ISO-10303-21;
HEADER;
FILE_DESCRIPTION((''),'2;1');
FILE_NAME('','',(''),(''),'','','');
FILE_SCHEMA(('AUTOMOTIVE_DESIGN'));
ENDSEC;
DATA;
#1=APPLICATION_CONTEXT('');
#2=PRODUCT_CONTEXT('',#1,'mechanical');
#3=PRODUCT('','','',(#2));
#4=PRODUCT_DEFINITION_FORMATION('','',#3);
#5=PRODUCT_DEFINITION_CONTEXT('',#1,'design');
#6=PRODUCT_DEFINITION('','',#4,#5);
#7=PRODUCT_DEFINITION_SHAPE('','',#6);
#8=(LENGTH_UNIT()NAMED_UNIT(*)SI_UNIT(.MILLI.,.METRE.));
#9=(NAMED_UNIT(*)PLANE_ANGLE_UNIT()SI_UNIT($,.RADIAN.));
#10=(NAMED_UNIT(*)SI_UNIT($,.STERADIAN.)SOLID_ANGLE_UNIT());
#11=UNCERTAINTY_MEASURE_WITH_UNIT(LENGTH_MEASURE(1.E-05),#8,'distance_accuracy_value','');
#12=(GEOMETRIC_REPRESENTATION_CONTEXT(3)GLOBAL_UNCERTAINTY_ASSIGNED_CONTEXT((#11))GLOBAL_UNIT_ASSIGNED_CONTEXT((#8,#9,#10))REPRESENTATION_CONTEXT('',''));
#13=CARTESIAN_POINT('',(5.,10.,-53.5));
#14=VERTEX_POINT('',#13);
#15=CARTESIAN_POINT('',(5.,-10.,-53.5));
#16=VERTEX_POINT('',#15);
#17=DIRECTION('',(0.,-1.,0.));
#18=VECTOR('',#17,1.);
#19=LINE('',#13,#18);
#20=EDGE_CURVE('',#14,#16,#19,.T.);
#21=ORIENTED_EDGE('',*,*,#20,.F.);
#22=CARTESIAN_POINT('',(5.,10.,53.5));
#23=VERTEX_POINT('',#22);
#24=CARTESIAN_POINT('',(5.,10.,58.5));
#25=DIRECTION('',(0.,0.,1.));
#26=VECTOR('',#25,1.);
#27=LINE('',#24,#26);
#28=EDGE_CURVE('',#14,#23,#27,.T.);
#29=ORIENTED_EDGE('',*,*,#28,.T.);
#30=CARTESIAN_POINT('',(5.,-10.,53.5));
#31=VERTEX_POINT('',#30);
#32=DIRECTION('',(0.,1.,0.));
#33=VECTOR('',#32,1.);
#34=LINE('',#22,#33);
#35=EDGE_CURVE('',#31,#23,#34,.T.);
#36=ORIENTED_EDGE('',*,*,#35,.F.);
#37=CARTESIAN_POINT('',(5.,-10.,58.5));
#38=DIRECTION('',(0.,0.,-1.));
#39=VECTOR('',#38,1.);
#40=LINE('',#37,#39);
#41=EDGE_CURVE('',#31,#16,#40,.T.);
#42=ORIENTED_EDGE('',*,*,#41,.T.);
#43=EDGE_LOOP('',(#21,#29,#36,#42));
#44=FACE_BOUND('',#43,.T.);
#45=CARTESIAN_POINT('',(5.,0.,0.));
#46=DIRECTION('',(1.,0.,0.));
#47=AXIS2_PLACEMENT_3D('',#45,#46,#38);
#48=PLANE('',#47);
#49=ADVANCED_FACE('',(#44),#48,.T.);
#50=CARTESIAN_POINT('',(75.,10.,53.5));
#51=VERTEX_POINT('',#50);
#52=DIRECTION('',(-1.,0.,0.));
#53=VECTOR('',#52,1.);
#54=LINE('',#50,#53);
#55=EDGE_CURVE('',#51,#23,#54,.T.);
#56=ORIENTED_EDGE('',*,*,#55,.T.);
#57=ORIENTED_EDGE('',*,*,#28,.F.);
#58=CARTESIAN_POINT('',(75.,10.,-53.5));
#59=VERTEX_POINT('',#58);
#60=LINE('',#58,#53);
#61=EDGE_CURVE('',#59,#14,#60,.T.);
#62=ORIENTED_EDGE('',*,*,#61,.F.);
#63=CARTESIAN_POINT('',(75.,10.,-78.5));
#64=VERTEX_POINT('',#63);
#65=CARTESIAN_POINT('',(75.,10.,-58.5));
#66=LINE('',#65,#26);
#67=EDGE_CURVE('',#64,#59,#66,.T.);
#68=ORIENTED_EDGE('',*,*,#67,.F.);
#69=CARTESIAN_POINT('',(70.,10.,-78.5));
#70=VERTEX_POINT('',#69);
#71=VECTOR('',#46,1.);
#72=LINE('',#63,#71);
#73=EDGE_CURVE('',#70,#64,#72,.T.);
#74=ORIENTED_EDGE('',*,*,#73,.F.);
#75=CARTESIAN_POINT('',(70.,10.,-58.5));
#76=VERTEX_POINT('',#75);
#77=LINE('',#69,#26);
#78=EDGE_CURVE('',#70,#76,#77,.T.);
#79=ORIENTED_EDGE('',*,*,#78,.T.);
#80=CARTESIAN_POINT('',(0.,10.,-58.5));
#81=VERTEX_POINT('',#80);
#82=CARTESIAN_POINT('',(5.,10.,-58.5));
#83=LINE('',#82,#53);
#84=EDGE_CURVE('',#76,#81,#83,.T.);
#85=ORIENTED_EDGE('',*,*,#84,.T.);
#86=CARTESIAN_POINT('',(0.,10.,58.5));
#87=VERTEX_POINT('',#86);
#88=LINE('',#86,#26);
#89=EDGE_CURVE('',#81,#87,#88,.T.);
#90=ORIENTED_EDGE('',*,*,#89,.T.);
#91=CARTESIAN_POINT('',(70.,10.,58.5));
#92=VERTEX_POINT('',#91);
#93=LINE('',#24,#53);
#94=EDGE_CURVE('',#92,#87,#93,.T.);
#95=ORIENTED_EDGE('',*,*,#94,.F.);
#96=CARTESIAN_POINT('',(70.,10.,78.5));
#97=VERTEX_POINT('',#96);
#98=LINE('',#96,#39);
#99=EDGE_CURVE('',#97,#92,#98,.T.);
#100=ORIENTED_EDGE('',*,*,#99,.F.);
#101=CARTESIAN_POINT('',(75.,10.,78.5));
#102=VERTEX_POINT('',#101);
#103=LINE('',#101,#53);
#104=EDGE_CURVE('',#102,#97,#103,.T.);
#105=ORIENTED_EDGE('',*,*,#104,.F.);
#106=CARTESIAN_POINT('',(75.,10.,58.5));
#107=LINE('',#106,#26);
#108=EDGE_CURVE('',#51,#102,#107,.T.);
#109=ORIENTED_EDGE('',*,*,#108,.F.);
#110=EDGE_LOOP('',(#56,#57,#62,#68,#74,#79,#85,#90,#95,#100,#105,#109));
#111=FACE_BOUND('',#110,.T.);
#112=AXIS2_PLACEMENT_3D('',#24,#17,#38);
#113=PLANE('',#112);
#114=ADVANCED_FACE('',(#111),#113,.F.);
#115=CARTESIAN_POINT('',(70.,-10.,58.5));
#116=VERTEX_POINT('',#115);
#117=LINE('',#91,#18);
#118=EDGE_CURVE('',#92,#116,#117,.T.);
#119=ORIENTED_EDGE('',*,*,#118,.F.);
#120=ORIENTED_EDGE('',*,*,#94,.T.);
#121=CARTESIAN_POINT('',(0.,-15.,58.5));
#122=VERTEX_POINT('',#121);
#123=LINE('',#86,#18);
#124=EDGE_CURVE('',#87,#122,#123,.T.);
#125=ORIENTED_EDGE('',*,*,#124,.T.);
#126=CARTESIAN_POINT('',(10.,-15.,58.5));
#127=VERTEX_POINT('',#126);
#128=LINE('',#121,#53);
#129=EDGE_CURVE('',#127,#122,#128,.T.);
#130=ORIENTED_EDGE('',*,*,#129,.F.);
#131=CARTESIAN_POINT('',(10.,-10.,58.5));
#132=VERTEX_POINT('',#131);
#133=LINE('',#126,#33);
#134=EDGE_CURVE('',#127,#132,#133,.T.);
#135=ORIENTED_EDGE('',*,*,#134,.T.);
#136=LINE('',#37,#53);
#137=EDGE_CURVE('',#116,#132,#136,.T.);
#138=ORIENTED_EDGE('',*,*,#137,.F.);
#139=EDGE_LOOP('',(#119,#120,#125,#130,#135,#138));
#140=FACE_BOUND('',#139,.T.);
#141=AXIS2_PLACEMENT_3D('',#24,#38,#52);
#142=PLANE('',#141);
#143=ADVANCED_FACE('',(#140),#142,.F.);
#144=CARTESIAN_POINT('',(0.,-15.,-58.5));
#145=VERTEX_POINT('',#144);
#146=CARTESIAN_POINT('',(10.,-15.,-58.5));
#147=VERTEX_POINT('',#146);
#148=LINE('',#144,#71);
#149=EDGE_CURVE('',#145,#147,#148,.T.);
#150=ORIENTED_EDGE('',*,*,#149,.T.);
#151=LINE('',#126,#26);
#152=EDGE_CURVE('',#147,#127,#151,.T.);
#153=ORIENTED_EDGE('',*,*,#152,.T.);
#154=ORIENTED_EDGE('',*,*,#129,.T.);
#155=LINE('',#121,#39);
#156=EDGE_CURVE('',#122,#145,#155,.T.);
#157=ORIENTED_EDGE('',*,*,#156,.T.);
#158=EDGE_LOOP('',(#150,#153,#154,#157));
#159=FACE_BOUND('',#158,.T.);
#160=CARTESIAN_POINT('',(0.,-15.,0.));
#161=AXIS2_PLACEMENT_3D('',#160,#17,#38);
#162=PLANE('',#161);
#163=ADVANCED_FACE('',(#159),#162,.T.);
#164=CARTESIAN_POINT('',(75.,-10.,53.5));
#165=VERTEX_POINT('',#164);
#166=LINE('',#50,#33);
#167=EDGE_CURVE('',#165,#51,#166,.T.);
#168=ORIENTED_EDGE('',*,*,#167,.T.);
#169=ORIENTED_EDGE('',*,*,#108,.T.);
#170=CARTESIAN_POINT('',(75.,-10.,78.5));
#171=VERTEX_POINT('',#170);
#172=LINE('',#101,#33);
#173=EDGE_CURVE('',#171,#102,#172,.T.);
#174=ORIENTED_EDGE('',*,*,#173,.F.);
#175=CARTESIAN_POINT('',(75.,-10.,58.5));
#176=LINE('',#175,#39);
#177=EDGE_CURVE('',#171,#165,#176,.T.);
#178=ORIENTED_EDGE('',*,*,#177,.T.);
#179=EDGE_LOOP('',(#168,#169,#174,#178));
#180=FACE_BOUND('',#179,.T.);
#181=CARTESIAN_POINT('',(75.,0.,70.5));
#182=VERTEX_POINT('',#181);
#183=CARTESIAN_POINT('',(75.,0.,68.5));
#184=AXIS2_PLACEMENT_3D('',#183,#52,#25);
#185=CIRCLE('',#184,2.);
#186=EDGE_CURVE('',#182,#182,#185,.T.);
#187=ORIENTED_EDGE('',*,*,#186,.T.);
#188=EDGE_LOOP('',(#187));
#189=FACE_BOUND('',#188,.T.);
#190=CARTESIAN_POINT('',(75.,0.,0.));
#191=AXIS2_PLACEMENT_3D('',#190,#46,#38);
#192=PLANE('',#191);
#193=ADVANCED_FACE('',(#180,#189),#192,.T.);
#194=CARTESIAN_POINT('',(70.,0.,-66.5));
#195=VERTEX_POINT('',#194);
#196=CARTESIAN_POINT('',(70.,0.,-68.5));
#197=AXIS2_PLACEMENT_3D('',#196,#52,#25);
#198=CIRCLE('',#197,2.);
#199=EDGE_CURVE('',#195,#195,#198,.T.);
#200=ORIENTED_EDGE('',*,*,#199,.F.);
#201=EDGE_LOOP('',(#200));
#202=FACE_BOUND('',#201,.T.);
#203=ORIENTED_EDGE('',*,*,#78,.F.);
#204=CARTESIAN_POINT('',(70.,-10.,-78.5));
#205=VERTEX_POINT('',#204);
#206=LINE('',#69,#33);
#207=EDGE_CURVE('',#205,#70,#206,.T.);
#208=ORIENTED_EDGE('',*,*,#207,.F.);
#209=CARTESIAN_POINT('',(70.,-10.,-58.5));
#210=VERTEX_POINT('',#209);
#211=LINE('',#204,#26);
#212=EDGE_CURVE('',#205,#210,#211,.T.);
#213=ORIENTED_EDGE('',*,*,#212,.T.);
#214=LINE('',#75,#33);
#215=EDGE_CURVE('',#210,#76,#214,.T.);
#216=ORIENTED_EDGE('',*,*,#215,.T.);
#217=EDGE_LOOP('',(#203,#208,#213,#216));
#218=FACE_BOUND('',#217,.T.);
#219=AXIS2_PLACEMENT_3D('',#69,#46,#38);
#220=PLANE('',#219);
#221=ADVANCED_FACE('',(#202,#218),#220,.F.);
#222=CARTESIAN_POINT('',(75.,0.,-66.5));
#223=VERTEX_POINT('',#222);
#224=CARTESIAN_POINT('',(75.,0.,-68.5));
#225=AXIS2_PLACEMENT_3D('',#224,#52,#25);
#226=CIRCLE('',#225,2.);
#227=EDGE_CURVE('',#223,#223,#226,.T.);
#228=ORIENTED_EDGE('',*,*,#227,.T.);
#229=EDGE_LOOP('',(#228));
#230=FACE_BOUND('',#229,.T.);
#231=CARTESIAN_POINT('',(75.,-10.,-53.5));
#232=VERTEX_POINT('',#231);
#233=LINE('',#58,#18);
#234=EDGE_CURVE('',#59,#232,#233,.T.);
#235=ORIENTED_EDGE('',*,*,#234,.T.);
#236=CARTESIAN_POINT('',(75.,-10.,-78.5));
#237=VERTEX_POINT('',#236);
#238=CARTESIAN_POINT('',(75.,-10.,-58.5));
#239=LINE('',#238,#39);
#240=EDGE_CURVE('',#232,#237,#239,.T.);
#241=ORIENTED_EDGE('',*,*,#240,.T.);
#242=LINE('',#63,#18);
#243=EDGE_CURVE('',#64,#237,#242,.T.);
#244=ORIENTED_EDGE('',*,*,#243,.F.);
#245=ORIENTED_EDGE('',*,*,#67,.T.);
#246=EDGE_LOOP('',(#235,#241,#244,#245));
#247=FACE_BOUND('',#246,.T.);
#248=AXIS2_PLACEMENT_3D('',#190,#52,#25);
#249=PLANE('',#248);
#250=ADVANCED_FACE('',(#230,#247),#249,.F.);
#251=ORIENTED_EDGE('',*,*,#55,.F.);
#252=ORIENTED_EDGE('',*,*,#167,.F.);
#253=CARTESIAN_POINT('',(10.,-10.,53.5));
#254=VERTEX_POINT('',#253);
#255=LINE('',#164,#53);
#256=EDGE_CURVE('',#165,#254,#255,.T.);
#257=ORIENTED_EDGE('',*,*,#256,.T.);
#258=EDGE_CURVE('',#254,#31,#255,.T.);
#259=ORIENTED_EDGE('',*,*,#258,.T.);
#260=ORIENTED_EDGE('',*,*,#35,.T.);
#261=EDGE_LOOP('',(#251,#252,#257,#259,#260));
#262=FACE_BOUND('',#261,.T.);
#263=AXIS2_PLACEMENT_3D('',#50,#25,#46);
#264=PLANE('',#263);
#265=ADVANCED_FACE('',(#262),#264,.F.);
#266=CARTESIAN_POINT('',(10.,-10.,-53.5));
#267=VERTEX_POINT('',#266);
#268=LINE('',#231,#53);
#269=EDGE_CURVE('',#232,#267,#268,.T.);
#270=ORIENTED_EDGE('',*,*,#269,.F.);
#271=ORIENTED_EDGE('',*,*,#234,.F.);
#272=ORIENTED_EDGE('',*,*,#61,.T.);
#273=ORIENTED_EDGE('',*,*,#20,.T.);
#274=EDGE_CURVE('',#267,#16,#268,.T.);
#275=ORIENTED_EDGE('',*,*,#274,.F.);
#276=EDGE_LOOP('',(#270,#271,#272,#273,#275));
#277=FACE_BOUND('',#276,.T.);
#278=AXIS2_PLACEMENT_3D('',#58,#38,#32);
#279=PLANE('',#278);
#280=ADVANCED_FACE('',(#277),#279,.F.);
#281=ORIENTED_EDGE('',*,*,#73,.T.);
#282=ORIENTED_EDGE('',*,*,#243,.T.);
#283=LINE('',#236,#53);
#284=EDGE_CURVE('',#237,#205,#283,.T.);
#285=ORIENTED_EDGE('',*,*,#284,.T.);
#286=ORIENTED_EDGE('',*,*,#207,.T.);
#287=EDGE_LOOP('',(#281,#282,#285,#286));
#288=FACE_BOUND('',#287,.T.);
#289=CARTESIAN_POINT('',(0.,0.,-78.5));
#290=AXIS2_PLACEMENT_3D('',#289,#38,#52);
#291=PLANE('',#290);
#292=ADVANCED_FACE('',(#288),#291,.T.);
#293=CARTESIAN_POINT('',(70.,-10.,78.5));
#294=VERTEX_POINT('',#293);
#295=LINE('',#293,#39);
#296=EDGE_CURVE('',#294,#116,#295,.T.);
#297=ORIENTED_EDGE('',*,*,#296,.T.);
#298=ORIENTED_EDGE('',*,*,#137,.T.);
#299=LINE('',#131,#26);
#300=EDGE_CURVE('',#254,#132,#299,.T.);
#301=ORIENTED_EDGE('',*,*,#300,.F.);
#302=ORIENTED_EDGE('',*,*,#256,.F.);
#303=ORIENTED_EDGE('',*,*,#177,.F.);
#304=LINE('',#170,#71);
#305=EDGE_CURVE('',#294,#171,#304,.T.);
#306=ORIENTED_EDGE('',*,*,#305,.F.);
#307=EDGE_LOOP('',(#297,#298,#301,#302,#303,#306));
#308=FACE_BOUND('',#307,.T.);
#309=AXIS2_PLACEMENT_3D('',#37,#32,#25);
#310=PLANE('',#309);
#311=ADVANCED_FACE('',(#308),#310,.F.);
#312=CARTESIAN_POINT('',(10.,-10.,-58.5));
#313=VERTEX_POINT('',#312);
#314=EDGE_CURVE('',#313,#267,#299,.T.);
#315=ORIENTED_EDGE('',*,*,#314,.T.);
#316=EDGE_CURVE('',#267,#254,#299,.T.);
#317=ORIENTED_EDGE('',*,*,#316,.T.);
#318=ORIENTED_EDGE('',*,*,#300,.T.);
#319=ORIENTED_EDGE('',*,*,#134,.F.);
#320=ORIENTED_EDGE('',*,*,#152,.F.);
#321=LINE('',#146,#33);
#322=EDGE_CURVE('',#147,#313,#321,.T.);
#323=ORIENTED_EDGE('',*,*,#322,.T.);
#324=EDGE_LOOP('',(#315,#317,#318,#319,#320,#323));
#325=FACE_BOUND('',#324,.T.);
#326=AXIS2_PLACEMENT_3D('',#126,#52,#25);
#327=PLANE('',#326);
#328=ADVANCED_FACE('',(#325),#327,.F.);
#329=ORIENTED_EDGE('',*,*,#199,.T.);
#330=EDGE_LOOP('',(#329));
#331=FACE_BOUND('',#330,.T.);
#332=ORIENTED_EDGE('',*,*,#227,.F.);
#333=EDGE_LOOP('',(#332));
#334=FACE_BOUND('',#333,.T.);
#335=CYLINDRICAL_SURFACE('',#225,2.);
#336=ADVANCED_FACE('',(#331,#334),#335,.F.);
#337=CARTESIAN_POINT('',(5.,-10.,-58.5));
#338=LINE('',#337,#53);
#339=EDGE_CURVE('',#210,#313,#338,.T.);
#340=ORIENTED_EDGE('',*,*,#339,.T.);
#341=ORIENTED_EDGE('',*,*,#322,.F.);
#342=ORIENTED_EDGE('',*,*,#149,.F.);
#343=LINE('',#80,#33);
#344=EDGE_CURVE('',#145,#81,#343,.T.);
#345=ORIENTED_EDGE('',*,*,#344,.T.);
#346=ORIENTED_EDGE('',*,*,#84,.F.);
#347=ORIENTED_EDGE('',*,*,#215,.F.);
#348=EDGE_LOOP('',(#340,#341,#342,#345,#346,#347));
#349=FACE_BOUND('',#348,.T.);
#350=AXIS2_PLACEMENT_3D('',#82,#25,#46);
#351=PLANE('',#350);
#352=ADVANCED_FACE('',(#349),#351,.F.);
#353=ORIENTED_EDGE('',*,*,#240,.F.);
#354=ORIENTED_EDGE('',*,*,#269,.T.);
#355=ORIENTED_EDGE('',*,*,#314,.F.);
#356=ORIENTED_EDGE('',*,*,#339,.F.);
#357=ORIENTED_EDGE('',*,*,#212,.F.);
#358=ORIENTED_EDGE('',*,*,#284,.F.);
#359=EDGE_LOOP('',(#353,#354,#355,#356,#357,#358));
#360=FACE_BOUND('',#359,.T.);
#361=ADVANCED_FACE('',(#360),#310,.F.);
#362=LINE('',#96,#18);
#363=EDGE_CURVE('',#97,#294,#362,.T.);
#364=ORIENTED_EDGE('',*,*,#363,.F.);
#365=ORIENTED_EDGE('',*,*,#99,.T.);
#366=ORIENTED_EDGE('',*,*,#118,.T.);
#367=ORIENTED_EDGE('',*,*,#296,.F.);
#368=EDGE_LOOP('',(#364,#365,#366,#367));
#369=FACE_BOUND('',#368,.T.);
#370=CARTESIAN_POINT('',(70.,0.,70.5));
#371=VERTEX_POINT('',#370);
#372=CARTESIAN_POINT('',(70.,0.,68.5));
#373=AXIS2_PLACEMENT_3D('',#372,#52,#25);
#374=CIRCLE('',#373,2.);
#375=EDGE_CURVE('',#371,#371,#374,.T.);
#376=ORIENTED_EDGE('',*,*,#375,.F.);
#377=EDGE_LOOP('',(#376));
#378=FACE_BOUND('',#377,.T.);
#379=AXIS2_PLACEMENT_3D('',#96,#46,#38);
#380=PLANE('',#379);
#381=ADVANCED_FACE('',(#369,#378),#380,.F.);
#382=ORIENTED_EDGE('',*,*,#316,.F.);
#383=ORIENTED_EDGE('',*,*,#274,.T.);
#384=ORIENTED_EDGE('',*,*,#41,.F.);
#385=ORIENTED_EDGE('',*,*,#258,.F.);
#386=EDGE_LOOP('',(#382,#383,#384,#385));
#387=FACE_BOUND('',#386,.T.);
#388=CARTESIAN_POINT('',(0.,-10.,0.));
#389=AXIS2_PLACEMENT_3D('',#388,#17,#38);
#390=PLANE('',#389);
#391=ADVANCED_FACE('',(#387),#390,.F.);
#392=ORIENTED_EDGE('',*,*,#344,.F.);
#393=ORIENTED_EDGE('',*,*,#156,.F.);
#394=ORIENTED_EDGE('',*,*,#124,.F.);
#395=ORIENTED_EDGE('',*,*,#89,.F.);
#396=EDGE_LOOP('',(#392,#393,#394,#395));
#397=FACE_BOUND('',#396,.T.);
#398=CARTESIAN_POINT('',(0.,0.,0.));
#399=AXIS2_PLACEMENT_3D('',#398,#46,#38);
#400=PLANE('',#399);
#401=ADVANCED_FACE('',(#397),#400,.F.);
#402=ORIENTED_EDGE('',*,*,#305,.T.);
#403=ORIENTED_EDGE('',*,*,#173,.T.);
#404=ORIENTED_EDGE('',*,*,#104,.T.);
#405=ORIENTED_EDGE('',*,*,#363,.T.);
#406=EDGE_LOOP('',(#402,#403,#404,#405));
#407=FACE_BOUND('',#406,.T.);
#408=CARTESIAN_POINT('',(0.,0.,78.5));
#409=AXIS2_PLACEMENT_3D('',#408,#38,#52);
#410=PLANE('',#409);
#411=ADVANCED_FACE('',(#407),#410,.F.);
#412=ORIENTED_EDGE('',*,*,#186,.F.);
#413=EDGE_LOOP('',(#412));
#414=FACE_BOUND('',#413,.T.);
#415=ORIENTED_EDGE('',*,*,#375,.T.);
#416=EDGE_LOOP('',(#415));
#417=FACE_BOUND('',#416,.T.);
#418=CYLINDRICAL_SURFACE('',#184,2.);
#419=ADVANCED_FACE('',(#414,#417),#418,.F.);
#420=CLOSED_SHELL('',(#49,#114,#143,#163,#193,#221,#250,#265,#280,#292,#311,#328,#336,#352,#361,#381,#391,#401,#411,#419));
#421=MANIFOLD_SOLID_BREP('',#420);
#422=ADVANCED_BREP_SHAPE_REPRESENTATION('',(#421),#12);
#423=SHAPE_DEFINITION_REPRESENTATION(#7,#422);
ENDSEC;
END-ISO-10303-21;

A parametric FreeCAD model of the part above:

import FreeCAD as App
import Part
import Sketcher
Q = App.Units.Quantity


def add_polygon(sketch, points):
    """Adds a closed chain of lines whose ends are joined by coincident constraints."""
    first, n = sketch.GeometryCount, len(points)
    for a, b in zip(points, points[1:] + points[:1]):
        sketch.addGeometry(Part.LineSegment(App.Vector(*a, 0), App.Vector(*b, 0)), False)
    for i in range(n):
        sketch.addConstraint(Sketcher.Constraint("Coincident", first + i, 2, first + (i + 1) % n, 1))

doc = App.newDocument("Part")
body = doc.addObject("PartDesign::Body", "Body")

# Sketch on YZ plane
sketch1 = body.newObject("Sketcher::SketchObject", "Sketch")
sketch1.AttachmentSupport = (doc.getObject("YZ_Plane"), [""])
sketch1.MapMode = "FlatFace"
add_polygon(sketch1, [(10, 58), (-10, 58), (-10, -58), (10, -58)])  # lines 0-3
sketch1.addConstraint([
    Sketcher.Constraint("Horizontal", 0),
    Sketcher.Constraint("Vertical", 1),
    Sketcher.Constraint("Horizontal", 2),
    Sketcher.Constraint("Vertical", 3),
    Sketcher.Constraint("Symmetric", 0, 2, 2, 2, -1, 1),
    Sketcher.Constraint("DistanceX", 0, 2, 0, 1, Q("20 mm")),
    Sketcher.Constraint("DistanceY", 1, 2, 1, 1, Q("117 mm")),
])
pad1 = body.newObject("PartDesign::Pad", "Pad")
pad1.Profile = sketch1
pad1.Length = 5

# Sketch on YZ plane
sketch2 = body.newObject("Sketcher::SketchObject", "Sketch001")
sketch2.AttachmentSupport = (doc.getObject("YZ_Plane"), [""])
sketch2.MapMode = "FlatFace"
sketch2.AttachmentOffset = App.Placement(App.Vector(0, 0, 5), App.Rotation())
add_polygon(sketch2, [(10, 58), (-10, 58), (-10, 54), (10, 54)])  # lines 0-3
add_polygon(sketch2, [(10, -54), (-10, -54), (-10, -58), (10, -58)])  # lines 4-7
sketch2.addConstraint([
    Sketcher.Constraint("Horizontal", 0),
    Sketcher.Constraint("Vertical", 1),
    Sketcher.Constraint("Horizontal", 2),
    Sketcher.Constraint("Vertical", 3),
    Sketcher.Constraint("Horizontal", 4),
    Sketcher.Constraint("Vertical", 5),
    Sketcher.Constraint("Horizontal", 6),
    Sketcher.Constraint("Vertical", 7),
    Sketcher.Constraint("Symmetric", 2, 2, 4, 2, -1, 1),
    Sketcher.Constraint("Symmetric", 0, 2, 6, 2, -1, 1),
    Sketcher.Constraint("Vertical", 1, 2, 4, 2),
    Sketcher.Constraint("DistanceX", 0, 2, 0, 1, Q("20 mm")),
    Sketcher.Constraint("DistanceY", 1, 2, 1, 1, Q("5 mm")),
    Sketcher.Constraint("DistanceY", 4, 2, 1, 2, Q("107 mm")),
])
pad2 = body.newObject("PartDesign::Pad", "Pad001")
pad2.Profile = sketch2
pad2.Length = 70

# Sketch on XZ plane
sketch3 = body.newObject("Sketcher::SketchObject", "Sketch002")
sketch3.AttachmentSupport = (doc.getObject("XZ_Plane"), [""])
sketch3.MapMode = "FlatFace"
sketch3.AttachmentOffset = App.Placement(App.Vector(0, 0, 10), App.Rotation())
add_polygon(sketch3, [(0, 58), (0, -58), (10, -58), (10, 58)])  # lines 0-3
sketch3.addConstraint([
    Sketcher.Constraint("Vertical", 0),
    Sketcher.Constraint("Horizontal", 1),
    Sketcher.Constraint("Vertical", 2),
    Sketcher.Constraint("Horizontal", 3),
    Sketcher.Constraint("Symmetric", 0, 2, 3, 2, -1, 1),
    Sketcher.Constraint("DistanceX", 1, 1, 1, 2, Q("10 mm")),
    Sketcher.Constraint("DistanceY", 0, 2, 0, 1, Q("117 mm")),
])
pad3 = body.newObject("PartDesign::Pad", "Pad002")
pad3.Profile = sketch3
pad3.Length = 5

# Sketch on XY plane
sketch4 = body.newObject("Sketcher::SketchObject", "Sketch003")
sketch4.AttachmentSupport = (doc.getObject("XY_Plane"), [""])
sketch4.MapMode = "FlatFace"
sketch4.AttachmentOffset = App.Placement(App.Vector(0, 0, 58.5), App.Rotation())
add_polygon(sketch4, [(70, 10), (70, -10), (75, -10), (75, 10)])  # lines 0-3
sketch4.addConstraint([
    Sketcher.Constraint("Vertical", 0),
    Sketcher.Constraint("Horizontal", 1),
    Sketcher.Constraint("Vertical", 2),
    Sketcher.Constraint("Horizontal", 3),
    Sketcher.Constraint("DistanceX", 1, 1, 1, 2, Q("5 mm")),
    Sketcher.Constraint("DistanceY", 0, 2, 0, 1, Q("20 mm")),
    Sketcher.Constraint("DistanceX", -1, 1, 0, 2, Q("70 mm")),
    Sketcher.Constraint("DistanceY", 0, 2, -1, 1, Q("10 mm")),
])
pad4 = body.newObject("PartDesign::Pad", "Pad003")
pad4.Profile = sketch4
pad4.Length = 20

# Sketch on XY plane
sketch5 = body.newObject("Sketcher::SketchObject", "Sketch004")
sketch5.AttachmentSupport = (doc.getObject("XY_Plane"), [""])
sketch5.MapMode = "FlatFace"
sketch5.AttachmentOffset = App.Placement(App.Vector(0, 0, -58.5), App.Rotation())
add_polygon(sketch5, [(75, 10), (75, -10), (70, -10), (70, 10)])  # lines 0-3
sketch5.addConstraint([
    Sketcher.Constraint("Vertical", 0),
    Sketcher.Constraint("Horizontal", 1),
    Sketcher.Constraint("Vertical", 2),
    Sketcher.Constraint("Horizontal", 3),
    Sketcher.Constraint("DistanceX", 1, 2, 1, 1, Q("5 mm")),
    Sketcher.Constraint("DistanceY", 0, 2, 0, 1, Q("20 mm")),
    Sketcher.Constraint("DistanceX", -1, 1, 0, 2, Q("75 mm")),
    Sketcher.Constraint("DistanceY", 0, 2, -1, 1, Q("10 mm")),
])
pad5 = body.newObject("PartDesign::Pad", "Pad004")
pad5.Profile = sketch5
pad5.Length = 20
pad5.Reversed = True

# Sketch on YZ plane
sketch6 = body.newObject("Sketcher::SketchObject", "Sketch005")
sketch6.AttachmentSupport = (doc.getObject("YZ_Plane"), [""])
sketch6.MapMode = "FlatFace"
sketch6.AttachmentOffset = App.Placement(App.Vector(0, 0, 70), App.Rotation())
sketch6.addGeometry([
    Part.Circle(App.Vector(0, -68.5, 0), App.Vector(0, 0, 1), 2),
    Part.Circle(App.Vector(0, 68.5, 0), App.Vector(0, 0, 1), 2),
], False)
sketch6.addConstraint([
    Sketcher.Constraint("Equal", 0, 1),
    Sketcher.Constraint("Symmetric", 0, 3, 1, 3, -1, 1),
    Sketcher.Constraint("PointOnObject", 0, 3, -2),
    Sketcher.Constraint("Diameter", 0, Q("4 mm")),
    Sketcher.Constraint("DistanceY", 0, 3, 1, 3, Q("137 mm")),
])
pocket1 = body.newObject("PartDesign::Pocket", "Pocket")
pocket1.Profile = sketch6
pocket1.Length = 5
pocket1.Reversed = True

doc.recompute()
